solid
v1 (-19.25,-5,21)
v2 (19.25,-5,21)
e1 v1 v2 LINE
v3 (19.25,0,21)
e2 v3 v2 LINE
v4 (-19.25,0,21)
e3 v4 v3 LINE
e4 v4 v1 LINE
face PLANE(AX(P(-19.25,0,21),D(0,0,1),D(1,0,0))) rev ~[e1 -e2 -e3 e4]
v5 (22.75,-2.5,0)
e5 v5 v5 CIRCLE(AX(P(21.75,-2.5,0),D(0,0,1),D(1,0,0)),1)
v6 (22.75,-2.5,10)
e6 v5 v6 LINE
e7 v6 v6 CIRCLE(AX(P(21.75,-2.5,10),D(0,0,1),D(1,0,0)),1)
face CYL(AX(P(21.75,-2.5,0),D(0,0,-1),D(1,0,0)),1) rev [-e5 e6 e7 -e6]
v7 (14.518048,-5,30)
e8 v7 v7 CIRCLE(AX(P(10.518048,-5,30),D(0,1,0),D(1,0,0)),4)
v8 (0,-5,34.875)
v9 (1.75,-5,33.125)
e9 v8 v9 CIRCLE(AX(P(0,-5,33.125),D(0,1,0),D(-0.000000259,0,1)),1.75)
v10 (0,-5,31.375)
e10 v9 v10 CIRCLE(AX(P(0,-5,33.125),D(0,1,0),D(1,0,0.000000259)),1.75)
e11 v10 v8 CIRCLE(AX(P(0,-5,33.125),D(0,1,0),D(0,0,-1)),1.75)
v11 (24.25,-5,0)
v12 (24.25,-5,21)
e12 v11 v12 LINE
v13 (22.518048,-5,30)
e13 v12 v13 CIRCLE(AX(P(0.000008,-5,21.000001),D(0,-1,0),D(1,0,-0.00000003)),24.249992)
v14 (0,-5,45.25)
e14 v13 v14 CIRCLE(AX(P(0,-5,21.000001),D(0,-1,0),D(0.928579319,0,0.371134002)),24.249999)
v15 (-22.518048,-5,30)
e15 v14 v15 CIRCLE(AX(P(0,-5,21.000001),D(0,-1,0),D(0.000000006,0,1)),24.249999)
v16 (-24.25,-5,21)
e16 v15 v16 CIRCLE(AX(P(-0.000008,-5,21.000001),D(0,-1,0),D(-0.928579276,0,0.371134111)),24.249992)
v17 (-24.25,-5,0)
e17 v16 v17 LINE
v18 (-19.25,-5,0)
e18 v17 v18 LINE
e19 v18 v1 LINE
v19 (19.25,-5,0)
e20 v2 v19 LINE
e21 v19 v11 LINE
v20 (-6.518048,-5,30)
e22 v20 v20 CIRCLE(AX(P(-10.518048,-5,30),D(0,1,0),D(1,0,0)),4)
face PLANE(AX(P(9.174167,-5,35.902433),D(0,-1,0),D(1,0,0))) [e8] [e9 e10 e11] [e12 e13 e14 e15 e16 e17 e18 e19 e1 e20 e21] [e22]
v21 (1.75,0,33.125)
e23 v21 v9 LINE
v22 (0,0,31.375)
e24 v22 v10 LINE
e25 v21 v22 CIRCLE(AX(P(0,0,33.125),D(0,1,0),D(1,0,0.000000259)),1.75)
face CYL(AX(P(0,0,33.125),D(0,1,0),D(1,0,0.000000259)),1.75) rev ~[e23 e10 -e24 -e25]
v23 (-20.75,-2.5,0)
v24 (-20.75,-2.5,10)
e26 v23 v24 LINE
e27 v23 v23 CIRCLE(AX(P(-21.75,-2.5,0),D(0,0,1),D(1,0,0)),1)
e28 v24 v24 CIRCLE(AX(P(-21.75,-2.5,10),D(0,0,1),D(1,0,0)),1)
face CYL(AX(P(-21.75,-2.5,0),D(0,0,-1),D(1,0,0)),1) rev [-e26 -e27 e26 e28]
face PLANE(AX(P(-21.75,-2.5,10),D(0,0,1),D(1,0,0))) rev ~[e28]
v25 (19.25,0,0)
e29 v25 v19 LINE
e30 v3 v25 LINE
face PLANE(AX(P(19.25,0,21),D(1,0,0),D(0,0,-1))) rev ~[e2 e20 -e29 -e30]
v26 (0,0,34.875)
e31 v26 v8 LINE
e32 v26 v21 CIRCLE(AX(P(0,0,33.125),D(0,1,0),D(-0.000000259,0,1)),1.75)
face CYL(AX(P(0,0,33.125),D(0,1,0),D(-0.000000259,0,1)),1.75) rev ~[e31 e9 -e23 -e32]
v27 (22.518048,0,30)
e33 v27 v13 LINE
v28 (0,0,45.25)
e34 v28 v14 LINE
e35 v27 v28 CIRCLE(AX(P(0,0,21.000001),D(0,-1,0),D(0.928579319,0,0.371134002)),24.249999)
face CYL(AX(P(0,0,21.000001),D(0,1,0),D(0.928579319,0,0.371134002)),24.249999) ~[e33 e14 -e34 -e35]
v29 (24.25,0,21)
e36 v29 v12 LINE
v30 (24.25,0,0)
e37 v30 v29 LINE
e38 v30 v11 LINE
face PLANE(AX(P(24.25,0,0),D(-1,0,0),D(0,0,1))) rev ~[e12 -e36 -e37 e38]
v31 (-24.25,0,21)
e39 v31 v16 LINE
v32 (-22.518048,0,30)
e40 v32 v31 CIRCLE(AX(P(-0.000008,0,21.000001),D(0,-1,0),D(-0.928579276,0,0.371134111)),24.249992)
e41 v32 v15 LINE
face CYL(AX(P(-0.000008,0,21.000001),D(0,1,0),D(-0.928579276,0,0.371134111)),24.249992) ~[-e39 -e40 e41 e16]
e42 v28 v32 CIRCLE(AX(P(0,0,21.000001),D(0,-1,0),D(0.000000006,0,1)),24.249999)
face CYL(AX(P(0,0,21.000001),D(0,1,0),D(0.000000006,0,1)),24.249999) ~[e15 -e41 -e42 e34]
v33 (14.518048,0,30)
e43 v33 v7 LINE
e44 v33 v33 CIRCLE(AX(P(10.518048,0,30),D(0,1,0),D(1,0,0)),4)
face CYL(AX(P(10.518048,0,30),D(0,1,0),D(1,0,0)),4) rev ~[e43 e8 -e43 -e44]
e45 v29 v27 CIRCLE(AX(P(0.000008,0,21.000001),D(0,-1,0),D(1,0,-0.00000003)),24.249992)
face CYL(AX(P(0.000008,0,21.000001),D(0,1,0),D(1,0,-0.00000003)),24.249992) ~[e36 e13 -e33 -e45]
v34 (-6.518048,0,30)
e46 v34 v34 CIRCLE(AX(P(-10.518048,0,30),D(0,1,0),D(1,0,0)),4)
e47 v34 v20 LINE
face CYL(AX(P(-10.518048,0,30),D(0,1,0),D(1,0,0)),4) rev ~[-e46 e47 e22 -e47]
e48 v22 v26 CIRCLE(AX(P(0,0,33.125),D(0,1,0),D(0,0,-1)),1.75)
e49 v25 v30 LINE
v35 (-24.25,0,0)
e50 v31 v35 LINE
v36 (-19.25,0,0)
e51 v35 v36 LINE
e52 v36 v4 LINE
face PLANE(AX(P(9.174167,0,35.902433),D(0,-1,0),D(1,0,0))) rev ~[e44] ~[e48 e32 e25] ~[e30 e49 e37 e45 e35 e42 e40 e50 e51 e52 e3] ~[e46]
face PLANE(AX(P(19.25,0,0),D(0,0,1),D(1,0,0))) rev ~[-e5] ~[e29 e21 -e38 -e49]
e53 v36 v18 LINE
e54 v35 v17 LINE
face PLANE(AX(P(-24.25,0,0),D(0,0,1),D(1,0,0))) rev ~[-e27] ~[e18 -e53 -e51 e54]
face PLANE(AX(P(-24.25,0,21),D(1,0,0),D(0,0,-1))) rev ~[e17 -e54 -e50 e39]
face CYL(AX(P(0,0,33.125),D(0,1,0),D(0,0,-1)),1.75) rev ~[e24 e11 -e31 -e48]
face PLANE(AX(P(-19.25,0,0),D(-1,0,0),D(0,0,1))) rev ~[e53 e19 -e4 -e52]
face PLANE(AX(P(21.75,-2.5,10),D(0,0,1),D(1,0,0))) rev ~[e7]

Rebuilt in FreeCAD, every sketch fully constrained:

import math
import FreeCAD as App
import Part
import Sketcher
from FreeCAD import Vector

doc = App.newDocument("Part")
body = doc.addObject("PartDesign::Body", "Body")

# Sketch on XZ plane
sketch1 = body.newObject("Sketcher::SketchObject", "Sketch")
sketch1.AttachmentSupport = (doc.getObject("XZ_Plane"), [""])
sketch1.MapMode = "FlatFace"
sketch1.addGeometry([
    Part.ArcOfCircle(Part.Circle(Vector(0, 21, 0), Vector(0, 0, 1), 24.2), math.radians(22), math.radians(90)),  # 0
    Part.ArcOfCircle(Part.Circle(Vector(0, 21, 0), Vector(0, 0, 1), 24.2), math.radians(90), math.radians(158)),  # 1
    Part.ArcOfCircle(Part.Circle(Vector(0, 21, 0), Vector(0, 0, 1), 24.2), math.radians(158), math.radians(180)),  # 2
    Part.LineSegment(Vector(-24.2, 21, 0), Vector(-24.2, 0, 0)),  # 3
    Part.LineSegment(Vector(-24.2, 0, 0), Vector(-19.2, 0, 0)),  # 4
    Part.LineSegment(Vector(-19.2, 0, 0), Vector(-19.2, 21, 0)),  # 5
    Part.LineSegment(Vector(-19.2, 21, 0), Vector(19.2, 21, 0)),  # 6
    Part.LineSegment(Vector(19.2, 21, 0), Vector(19.2, 0, 0)),  # 7
    Part.LineSegment(Vector(19.2, 0, 0), Vector(24.2, 0, 0)),  # 8
    Part.LineSegment(Vector(24.2, 0, 0), Vector(24.2, 21, 0)),  # 9
    Part.ArcOfCircle(Part.Circle(Vector(0, 21, 0), Vector(0, 0, 1), 24.2), math.radians(0), math.radians(22)),  # 10
    Part.Circle(Vector(-10.5, 30, 0), Vector(0, 0, 1), 4),  # 11
    Part.Circle(Vector(10.5, 30, 0), Vector(0, 0, 1), 4),  # 12
    Part.ArcOfCircle(Part.Circle(Vector(0, 33.1, 0), Vector(0, 0, 1), 1.7), math.radians(0), math.radians(90)),  # 13
    Part.ArcOfCircle(Part.Circle(Vector(0, 33.1, 0), Vector(0, 0, 1), 1.7), math.radians(-90), math.radians(0)),  # 14
    Part.ArcOfCircle(Part.Circle(Vector(0, 33.1, 0), Vector(0, 0, 1), 1.8), math.radians(90), math.radians(270)),  # 15
], False)
sketch1.addConstraint([
    Sketcher.Constraint("Tangent", 0, 2, 1, 1),
    Sketcher.Constraint("Tangent", 1, 2, 2, 1),
    Sketcher.Constraint("Tangent", 2, 2, 3, 1),
    Sketcher.Constraint("Coincident", 3, 2, 4, 1),
    Sketcher.Constraint("Coincident", 4, 2, 5, 1),
    Sketcher.Constraint("Coincident", 5, 2, 6, 1),
    Sketcher.Constraint("Coincident", 6, 2, 7, 1),
    Sketcher.Constraint("Coincident", 7, 2, 8, 1),
    Sketcher.Constraint("Coincident", 8, 2, 9, 1),
    Sketcher.Constraint("Tangent", 9, 2, 10, 1),
    Sketcher.Constraint("Tangent", 10, 2, 0, 1),
    Sketcher.Constraint("Tangent", 13, 1, 14, 2),
    Sketcher.Constraint("Tangent", 14, 1, 15, 2),
    Sketcher.Constraint("Tangent", 15, 1, 13, 2),
    Sketcher.Constraint("Vertical", 3),
    Sketcher.Constraint("Horizontal", 4),
    Sketcher.Constraint("Vertical", 5),
    Sketcher.Constraint("Horizontal", 6),
    Sketcher.Constraint("Vertical", 7),
    Sketcher.Constraint("Horizontal", 8),
    Sketcher.Constraint("Vertical", 9),
    Sketcher.Constraint("Coincident", 2, 3, 0, 3),
    Sketcher.Constraint("Equal", 2, 10),
    Sketcher.Constraint("Equal", 11, 12),
    Sketcher.Constraint("Symmetric", 4, 2, 7, 2, -1, 1),
    Sketcher.Constraint("Symmetric", 11, 3, 12, 3, -2),
    Sketcher.Constraint("Symmetric", 3, 2, 8, 2, -2),
    Sketcher.Constraint("PointOnObject", 13, 3, -2),
    Sketcher.Constraint("PointOnObject", 0, 2, -2),
    Sketcher.Constraint("PointOnObject", 14, 1, -2),
    Sketcher.Constraint("PointOnObject", 15, 1, -2),
    Sketcher.Constraint("Horizontal", 12, 3, 1, 2),
    Sketcher.Constraint("Horizontal", 2, 2, 5, 2),
    Sketcher.Constraint("Horizontal", 1, 2, 10, 2),
    Sketcher.Constraint("Horizontal", 15, 3, 13, 1),
    Sketcher.Constraint("Diameter", 11, 8.0),
    Sketcher.Constraint("DistanceX", 4, 1, 4, 2, 5.0),
    Sketcher.Constraint("DistanceY", 3, 2, 3, 1, 21.0),
    Sketcher.Constraint("Radius", 0, 24.249999),
    Sketcher.Constraint("Radius", 13, 1.75),
    Sketcher.Constraint("DistanceY", -1, 1, 11, 3, 30.0),
    Sketcher.Constraint("DistanceX", 1, 2, 11, 3, 12.0),
    Sketcher.Constraint("DistanceY", -1, 1, 13, 3, 33.125),
])
pad1 = body.newObject("PartDesign::Pad", "Pad")
pad1.Profile = sketch1
pad1.Length = 5

# Sketch on XY plane
sketch2 = body.newObject("Sketcher::SketchObject", "Sketch001")
sketch2.AttachmentSupport = (doc.getObject("XY_Plane"), [""])
sketch2.MapMode = "FlatFace"
sketch2.addGeometry([
    Part.Circle(Vector(21.8, -2.5, 0), Vector(0, 0, 1), 1),
    Part.Circle(Vector(-21.8, -2.5, 0), Vector(0, 0, 1), 1),
], False)
sketch2.addConstraint([
    Sketcher.Constraint("Equal", 0, 1),
    Sketcher.Constraint("Symmetric", 0, 3, 1, 3, -2),
    Sketcher.Constraint("Diameter", 0, 2.0),
    Sketcher.Constraint("DistanceY", 0, 3, -1, 1, 2.5),
    Sketcher.Constraint("DistanceX", 1, 3, 0, 3, 43.5),
])
pocket1 = body.newObject("PartDesign::Pocket", "Pocket")
pocket1.Profile = sketch2
pocket1.Length = 10
pocket1.Reversed = True

doc.recompute()
